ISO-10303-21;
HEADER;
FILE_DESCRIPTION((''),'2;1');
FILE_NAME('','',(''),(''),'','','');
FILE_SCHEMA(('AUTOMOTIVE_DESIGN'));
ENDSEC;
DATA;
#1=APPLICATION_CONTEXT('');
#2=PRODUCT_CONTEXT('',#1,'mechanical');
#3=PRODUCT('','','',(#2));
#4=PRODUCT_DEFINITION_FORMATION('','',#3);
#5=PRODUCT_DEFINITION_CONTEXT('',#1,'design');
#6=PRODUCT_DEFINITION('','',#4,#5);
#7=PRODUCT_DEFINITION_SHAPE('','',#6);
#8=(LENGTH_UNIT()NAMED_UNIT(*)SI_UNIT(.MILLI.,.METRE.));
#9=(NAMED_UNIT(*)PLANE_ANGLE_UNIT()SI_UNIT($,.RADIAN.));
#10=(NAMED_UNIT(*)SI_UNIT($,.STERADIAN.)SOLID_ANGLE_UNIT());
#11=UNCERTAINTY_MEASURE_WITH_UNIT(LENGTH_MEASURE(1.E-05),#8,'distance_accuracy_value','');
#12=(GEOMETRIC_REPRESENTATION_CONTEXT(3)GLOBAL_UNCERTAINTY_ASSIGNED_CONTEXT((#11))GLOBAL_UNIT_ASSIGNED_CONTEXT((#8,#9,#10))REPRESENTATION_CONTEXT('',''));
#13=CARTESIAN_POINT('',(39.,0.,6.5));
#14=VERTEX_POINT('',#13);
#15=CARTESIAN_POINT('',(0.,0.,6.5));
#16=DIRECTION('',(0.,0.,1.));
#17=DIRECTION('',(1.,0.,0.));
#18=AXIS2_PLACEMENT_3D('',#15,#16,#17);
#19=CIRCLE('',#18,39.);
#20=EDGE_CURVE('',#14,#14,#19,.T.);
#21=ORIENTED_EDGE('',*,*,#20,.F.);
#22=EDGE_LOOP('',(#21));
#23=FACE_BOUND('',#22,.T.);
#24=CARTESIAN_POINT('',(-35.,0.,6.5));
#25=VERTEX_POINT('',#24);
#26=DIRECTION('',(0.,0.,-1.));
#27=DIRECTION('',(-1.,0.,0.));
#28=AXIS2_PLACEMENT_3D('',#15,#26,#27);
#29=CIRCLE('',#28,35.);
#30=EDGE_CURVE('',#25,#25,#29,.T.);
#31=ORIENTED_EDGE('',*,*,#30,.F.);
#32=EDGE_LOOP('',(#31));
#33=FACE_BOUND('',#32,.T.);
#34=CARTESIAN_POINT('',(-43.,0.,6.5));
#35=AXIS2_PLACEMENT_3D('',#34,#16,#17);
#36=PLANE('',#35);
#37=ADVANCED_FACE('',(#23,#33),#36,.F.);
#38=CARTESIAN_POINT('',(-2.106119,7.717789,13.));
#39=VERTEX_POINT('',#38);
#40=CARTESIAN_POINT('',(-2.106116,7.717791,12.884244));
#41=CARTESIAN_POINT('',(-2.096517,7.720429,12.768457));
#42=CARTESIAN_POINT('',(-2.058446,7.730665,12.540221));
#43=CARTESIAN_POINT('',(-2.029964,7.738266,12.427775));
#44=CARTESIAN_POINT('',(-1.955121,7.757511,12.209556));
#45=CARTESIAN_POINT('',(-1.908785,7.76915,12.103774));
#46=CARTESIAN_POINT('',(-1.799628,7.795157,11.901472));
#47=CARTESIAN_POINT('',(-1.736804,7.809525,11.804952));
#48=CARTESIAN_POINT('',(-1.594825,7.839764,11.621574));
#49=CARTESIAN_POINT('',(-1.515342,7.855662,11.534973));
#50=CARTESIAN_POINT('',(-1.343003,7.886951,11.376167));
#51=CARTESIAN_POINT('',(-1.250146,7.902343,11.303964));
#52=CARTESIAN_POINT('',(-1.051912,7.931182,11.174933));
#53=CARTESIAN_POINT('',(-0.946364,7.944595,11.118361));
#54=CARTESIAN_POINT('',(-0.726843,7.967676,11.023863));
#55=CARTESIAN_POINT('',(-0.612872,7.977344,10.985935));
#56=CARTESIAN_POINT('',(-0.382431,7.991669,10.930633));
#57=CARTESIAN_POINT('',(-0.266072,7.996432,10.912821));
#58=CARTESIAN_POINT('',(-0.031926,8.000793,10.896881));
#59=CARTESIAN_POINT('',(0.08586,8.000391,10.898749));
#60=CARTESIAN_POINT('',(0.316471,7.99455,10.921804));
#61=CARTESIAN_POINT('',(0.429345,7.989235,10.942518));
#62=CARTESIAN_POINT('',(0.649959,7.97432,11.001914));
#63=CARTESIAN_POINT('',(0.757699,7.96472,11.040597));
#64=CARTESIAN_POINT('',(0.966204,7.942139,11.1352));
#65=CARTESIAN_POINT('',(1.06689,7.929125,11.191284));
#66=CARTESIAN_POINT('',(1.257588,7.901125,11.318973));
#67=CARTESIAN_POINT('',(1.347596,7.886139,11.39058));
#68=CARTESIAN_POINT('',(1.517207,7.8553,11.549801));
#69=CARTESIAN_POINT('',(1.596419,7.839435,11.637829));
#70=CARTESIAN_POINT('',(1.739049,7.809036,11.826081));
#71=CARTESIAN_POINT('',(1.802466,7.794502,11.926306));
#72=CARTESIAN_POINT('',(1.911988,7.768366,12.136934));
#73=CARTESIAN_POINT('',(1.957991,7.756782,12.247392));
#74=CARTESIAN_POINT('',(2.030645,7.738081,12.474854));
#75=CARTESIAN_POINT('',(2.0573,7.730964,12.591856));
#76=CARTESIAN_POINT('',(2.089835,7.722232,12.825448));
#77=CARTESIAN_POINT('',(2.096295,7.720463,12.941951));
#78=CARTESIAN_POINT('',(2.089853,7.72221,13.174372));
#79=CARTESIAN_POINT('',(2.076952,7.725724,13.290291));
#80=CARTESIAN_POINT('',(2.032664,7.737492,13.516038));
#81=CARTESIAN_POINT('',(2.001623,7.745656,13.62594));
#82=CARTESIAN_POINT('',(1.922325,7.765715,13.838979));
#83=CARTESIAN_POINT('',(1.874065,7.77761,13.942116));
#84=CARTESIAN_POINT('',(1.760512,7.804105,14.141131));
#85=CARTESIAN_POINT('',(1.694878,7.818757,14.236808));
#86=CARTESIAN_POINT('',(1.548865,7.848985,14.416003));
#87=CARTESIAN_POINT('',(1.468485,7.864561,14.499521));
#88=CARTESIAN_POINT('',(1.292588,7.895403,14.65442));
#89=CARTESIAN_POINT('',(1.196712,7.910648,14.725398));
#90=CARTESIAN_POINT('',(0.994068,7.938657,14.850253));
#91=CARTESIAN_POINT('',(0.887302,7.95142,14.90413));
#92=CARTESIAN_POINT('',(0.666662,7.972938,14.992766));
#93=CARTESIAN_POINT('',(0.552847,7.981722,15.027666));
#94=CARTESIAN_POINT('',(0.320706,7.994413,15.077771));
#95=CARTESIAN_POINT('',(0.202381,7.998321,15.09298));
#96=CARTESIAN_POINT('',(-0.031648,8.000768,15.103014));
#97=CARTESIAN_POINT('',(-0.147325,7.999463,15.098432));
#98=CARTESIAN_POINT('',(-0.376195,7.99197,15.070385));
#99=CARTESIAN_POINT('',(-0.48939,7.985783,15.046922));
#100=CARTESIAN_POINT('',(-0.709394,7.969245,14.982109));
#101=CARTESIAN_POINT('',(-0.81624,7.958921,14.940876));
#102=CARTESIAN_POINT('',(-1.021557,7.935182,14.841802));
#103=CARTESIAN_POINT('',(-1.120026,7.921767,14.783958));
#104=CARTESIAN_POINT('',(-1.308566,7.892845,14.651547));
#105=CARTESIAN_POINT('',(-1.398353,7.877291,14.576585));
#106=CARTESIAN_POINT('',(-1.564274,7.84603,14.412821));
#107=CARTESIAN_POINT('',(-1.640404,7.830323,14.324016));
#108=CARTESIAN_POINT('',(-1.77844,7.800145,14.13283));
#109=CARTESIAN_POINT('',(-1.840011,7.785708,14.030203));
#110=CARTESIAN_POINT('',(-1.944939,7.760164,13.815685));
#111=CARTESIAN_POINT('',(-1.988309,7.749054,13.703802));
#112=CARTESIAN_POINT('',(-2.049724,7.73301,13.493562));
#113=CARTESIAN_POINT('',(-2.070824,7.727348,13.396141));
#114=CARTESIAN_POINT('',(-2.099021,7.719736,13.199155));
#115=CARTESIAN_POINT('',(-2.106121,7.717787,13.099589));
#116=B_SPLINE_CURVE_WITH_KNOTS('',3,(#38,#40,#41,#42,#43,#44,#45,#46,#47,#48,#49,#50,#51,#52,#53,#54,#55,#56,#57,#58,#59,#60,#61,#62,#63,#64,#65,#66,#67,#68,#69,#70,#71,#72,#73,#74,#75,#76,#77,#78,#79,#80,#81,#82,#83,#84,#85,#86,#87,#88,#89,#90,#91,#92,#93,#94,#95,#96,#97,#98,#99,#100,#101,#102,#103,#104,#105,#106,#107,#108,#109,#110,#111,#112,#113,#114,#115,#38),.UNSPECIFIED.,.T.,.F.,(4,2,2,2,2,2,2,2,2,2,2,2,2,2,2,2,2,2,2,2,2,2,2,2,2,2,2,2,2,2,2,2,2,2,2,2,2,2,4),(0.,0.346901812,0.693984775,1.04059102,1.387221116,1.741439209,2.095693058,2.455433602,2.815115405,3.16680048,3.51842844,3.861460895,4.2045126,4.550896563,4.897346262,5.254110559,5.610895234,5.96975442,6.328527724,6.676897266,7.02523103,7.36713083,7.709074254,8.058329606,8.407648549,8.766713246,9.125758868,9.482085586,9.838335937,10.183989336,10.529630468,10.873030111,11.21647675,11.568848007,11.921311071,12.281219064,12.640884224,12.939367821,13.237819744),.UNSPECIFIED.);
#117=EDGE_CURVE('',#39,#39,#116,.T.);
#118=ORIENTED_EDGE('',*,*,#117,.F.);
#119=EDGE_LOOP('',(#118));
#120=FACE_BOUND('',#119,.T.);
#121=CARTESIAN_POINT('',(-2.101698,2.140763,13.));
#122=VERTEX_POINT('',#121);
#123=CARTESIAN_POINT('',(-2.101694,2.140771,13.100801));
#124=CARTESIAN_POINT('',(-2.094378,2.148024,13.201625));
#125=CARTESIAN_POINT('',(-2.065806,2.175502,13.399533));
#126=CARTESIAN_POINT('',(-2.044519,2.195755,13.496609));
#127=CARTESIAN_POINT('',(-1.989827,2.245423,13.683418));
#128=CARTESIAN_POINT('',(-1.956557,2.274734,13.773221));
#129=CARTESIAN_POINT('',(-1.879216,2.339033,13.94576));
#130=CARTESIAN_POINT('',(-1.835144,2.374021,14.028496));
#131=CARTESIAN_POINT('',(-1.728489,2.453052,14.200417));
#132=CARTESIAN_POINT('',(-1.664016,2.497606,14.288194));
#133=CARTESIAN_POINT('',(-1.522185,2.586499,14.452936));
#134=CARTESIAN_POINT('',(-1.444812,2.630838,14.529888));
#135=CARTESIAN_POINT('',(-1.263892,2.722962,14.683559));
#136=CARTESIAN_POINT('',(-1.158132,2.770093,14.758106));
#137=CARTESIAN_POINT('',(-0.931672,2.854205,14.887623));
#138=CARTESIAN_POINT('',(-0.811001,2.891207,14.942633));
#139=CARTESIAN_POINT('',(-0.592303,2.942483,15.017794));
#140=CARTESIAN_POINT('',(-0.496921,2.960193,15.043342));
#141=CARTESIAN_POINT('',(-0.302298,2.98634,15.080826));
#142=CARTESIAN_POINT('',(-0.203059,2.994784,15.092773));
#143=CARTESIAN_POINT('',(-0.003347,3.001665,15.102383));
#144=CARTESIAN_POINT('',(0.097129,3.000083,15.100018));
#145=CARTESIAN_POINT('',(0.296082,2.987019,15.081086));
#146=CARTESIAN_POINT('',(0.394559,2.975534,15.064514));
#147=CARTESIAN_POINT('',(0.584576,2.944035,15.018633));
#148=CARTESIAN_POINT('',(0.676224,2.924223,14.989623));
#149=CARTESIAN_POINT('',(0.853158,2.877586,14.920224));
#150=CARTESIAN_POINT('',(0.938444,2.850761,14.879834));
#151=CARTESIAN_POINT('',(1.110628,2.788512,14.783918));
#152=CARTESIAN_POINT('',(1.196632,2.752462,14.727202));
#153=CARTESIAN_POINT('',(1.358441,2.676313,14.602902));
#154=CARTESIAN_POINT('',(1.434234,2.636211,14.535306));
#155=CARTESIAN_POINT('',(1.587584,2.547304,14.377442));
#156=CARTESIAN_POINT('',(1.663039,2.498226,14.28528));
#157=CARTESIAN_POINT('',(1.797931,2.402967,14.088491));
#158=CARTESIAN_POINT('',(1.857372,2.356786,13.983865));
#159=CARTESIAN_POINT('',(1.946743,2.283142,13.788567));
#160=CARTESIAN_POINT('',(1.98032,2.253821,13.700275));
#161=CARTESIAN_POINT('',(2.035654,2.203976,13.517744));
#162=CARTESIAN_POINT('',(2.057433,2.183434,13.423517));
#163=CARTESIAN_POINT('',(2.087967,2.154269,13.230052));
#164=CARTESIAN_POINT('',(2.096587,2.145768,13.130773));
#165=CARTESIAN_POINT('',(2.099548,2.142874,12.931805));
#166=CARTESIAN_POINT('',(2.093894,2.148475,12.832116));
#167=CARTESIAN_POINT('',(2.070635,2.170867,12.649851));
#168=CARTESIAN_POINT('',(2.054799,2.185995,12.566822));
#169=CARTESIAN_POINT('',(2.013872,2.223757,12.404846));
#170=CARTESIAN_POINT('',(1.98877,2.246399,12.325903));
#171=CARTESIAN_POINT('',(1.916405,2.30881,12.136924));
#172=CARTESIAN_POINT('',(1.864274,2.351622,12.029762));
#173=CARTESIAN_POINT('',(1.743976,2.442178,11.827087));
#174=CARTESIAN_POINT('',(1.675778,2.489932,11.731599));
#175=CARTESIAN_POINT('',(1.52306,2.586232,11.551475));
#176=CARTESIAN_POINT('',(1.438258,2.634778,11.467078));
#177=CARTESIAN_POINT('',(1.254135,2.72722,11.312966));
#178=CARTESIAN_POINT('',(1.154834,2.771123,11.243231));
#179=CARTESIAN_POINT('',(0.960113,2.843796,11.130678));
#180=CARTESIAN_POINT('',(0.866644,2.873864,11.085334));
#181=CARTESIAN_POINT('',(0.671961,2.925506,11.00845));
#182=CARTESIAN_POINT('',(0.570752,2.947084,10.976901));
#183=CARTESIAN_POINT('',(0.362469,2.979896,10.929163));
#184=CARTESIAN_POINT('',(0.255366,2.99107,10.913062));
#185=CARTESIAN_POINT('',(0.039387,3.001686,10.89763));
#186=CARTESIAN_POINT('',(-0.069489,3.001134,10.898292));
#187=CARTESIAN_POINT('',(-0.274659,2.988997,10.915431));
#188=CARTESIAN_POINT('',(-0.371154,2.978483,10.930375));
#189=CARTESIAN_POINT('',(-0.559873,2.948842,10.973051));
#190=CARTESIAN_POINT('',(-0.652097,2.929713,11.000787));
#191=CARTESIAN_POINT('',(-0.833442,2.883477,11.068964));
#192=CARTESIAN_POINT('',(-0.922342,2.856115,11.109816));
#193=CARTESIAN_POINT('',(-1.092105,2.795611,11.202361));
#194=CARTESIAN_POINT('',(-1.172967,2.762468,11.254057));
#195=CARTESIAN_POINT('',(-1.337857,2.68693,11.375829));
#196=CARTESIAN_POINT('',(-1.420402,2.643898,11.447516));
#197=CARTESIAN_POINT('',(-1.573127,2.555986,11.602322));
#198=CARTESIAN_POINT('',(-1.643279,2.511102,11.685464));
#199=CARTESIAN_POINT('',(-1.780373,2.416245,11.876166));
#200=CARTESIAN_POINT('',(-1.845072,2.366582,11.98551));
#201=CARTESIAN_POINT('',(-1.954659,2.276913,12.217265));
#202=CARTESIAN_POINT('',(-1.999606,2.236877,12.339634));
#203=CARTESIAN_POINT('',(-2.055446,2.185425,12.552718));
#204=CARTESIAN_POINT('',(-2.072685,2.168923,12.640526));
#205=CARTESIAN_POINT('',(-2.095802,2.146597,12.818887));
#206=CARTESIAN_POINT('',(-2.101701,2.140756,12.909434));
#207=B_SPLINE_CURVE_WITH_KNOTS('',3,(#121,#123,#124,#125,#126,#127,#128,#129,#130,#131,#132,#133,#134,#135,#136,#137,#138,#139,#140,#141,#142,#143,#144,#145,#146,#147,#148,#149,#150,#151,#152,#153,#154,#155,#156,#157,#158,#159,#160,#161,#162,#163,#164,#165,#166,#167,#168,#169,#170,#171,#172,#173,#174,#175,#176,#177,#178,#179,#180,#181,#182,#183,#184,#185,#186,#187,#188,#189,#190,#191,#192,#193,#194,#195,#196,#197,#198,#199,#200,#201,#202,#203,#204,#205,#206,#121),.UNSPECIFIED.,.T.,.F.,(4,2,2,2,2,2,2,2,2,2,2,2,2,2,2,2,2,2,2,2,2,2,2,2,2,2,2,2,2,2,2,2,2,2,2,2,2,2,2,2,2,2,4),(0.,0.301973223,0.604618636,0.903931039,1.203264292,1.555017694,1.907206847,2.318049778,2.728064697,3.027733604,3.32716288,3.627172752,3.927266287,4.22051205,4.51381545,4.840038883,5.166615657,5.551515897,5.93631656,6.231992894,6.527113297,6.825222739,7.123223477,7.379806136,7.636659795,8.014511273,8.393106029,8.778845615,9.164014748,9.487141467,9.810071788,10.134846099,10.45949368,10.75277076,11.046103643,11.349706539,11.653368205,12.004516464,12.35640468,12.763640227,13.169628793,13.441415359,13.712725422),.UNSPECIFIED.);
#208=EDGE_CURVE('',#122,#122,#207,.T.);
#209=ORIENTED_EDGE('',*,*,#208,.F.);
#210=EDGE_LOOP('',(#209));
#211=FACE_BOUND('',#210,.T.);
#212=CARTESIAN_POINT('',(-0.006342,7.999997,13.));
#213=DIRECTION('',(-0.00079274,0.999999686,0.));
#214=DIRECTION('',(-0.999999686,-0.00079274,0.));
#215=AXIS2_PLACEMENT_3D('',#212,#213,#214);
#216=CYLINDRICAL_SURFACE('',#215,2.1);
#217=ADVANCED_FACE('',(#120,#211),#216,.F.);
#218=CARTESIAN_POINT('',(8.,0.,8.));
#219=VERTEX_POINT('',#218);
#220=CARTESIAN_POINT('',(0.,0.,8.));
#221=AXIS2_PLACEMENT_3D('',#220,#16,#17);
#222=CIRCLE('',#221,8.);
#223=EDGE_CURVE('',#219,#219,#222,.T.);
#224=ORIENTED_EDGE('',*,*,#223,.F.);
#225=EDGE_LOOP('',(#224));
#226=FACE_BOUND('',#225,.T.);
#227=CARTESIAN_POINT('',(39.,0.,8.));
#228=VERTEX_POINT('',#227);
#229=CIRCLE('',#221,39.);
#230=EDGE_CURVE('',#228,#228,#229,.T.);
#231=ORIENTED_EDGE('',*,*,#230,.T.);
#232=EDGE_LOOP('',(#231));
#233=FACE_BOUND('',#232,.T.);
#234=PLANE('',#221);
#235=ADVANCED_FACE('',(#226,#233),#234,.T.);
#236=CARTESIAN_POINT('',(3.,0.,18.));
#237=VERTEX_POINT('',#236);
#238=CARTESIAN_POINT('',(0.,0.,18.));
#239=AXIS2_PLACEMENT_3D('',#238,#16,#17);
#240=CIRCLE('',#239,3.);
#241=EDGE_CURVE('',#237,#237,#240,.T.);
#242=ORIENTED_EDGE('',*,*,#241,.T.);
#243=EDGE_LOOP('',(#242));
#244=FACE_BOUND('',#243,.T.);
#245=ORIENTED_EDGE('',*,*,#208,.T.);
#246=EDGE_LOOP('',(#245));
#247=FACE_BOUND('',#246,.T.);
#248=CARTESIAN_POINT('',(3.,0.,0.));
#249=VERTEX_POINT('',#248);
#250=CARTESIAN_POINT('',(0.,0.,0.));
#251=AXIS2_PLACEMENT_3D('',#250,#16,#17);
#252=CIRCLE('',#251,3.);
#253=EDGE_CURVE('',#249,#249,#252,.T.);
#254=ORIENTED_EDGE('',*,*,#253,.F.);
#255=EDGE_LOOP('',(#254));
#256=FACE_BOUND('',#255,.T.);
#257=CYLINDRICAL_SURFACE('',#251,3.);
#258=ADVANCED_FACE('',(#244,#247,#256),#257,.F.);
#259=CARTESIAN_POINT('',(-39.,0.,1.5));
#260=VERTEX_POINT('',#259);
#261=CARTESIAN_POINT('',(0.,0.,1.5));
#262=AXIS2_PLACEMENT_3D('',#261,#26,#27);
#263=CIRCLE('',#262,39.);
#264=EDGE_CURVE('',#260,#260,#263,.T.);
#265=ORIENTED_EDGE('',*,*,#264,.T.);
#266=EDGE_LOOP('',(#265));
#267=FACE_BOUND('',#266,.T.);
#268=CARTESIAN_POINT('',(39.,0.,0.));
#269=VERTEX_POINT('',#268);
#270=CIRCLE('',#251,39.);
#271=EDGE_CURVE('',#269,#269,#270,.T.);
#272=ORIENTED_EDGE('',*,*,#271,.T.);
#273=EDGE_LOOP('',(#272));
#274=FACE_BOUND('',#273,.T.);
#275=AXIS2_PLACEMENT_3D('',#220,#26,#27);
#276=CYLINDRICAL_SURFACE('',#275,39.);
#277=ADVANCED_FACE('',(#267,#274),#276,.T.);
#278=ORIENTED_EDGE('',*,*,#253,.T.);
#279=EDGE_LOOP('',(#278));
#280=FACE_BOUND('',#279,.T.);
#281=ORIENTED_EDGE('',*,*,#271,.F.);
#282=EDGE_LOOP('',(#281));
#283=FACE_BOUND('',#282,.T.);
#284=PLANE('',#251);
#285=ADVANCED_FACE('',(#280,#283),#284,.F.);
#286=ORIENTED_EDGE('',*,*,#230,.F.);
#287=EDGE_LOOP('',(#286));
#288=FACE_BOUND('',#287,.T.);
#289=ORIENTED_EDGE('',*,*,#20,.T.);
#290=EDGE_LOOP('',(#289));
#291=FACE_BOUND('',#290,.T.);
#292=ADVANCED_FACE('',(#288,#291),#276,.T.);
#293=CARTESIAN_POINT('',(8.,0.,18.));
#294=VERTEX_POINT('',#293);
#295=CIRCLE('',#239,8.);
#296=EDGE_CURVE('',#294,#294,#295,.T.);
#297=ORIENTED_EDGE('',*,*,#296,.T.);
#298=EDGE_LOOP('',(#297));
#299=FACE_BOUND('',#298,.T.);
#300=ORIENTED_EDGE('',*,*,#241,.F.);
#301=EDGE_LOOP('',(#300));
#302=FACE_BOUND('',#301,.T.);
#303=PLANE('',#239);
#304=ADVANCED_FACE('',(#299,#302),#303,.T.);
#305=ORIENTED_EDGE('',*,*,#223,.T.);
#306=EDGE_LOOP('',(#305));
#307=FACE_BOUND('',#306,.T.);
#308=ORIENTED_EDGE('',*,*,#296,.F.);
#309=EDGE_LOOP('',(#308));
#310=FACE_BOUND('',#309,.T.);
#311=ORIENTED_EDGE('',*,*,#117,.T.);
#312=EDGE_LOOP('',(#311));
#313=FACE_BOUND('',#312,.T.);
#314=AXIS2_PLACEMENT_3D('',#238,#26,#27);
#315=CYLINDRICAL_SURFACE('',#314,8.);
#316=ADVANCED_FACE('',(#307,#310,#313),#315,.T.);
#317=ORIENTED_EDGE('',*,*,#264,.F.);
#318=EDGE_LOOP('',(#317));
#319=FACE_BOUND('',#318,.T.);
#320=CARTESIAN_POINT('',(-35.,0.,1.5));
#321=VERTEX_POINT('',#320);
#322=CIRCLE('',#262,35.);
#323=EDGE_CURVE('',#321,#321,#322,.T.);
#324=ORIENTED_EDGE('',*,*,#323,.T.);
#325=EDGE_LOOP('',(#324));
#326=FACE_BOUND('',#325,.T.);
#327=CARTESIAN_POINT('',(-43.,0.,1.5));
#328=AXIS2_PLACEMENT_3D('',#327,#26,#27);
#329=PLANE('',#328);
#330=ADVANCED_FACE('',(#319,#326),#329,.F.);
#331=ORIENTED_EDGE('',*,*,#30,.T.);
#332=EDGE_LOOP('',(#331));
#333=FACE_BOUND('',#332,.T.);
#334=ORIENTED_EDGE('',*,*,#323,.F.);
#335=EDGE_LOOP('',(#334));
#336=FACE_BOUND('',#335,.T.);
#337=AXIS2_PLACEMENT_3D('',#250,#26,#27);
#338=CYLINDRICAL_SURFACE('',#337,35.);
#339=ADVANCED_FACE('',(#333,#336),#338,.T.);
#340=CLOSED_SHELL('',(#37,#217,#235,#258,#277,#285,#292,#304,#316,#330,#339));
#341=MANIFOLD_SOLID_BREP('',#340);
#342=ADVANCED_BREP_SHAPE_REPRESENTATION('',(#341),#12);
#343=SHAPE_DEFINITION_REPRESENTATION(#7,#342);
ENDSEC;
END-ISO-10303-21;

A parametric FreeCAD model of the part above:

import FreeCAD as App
import Part
import Sketcher

V = App.Vector
Q = App.Units.Quantity

doc = App.newDocument("Part")
params = doc.addObject("Spreadsheet::Sheet", "Params")
for row, (alias, value) in enumerate([
    ("sketch1_diameter", "78 mm"),
    ("pad1_length", "8 mm"),
    ("sketch2_diameter", "16 mm"),
    ("pad2_length", "10 mm"),
    ("sketch3_diameter", "6 mm"),
    ("sketch4_diameter", "4.2 mm"),
    ("sketch5_width", "8 mm"),
    ("sketch5_height", "5 mm"),
    ("groove_angle", "360 deg"),
], start=1):
    params.set(f"A{row}", alias)
    params.set(f"B{row}", "=" + value)
    params.setAlias(f"B{row}", alias)

body = doc.addObject("PartDesign::Body", "Body")

# Sketch on XY plane
sketch1 = body.newObject("Sketcher::SketchObject", "Sketch")
sketch1.AttachmentSupport = (doc.getObject("XY_Plane"), [""])
sketch1.MapMode = "FlatFace"
sketch1.addGeometry(Part.Circle(V(0, 0, 0), V(0, 0, 1), 39), False)
sketch1.addConstraint([
    Sketcher.Constraint("Coincident", 0, 3, -1, 1),
    Sketcher.Constraint("Diameter", 0, Q("78 mm")),
])
sketch1.setExpression("Constraints[1]", "Params.sketch1_diameter")
pad1 = body.newObject("PartDesign::Pad", "Pad")
pad1.Profile = sketch1
pad1.setExpression("Length", "Params.pad1_length")

# Sketch on XY plane
sketch2 = body.newObject("Sketcher::SketchObject", "Sketch001")
sketch2.AttachmentSupport = (doc.getObject("XY_Plane"), [""])
sketch2.MapMode = "FlatFace"
sketch2.AttachmentOffset = App.Placement(V(0, 0, 8), App.Rotation())
sketch2.addGeometry(Part.Circle(V(0, 0, 0), V(0, 0, 1), 8), False)
sketch2.addConstraint([
    Sketcher.Constraint("Coincident", 0, 3, -1, 1),
    Sketcher.Constraint("Diameter", 0, Q("16 mm")),
])
sketch2.setExpression("Constraints[1]", "Params.sketch2_diameter")
pad2 = body.newObject("PartDesign::Pad", "Pad001")
pad2.Profile = sketch2
pad2.setExpression("Length", "Params.pad2_length")

# Sketch on XY plane
sketch3 = body.newObject("Sketcher::SketchObject", "Sketch002")
sketch3.AttachmentSupport = (doc.getObject("XY_Plane"), [""])
sketch3.MapMode = "FlatFace"
sketch3.AttachmentOffset = App.Placement(V(0, 0, 18), App.Rotation())
sketch3.addGeometry(Part.Circle(V(0, 0, 0), V(0, 0, 1), 3), False)
sketch3.addConstraint([
    Sketcher.Constraint("Coincident", 0, 3, -1, 1),
    Sketcher.Constraint("Diameter", 0, Q("6 mm")),
])
sketch3.setExpression("Constraints[1]", "Params.sketch3_diameter")
pocket1 = body.newObject("PartDesign::Pocket", "Pocket")
pocket1.Profile = sketch3
pocket1.Type = "ThroughAll"

# Sketch on an angled plane
sketch4 = body.newObject("Sketcher::SketchObject", "Sketch003")
sketch4.Placement = App.Placement(V(-0.006342, 7.999997, 13), App.Rotation(V(0.999999686, 0.00079274, 0), V(0, 0, -1), V(-0.00079274, 0.999999686, 0), "ZXY"))
sketch4.addGeometry(Part.Circle(V(0, 0, 0), V(0, 0, 1), 2.1), False)
sketch4.addConstraint([
    Sketcher.Constraint("Coincident", 0, 3, -1, 1),
    Sketcher.Constraint("Diameter", 0, Q("4.2 mm")),
])
sketch4.setExpression("Constraints[1]", "Params.sketch4_diameter")
pocket2 = body.newObject("PartDesign::Pocket", "Pocket001")
pocket2.Profile = sketch4
pocket2.Type = "UpToFirst"

# Sketch on XZ plane
sketch5 = body.newObject("Sketcher::SketchObject", "Sketch004")
sketch5.AttachmentSupport = (doc.getObject("XZ_Plane"), [""])
sketch5.MapMode = "FlatFace"
sketch5.addGeometry([
    Part.LineSegment(V(-43, 2, 0), V(-43, 6, 0)),
    Part.LineSegment(V(-43, 6, 0), V(-35, 6, 0)),
    Part.LineSegment(V(-35, 6, 0), V(-35, 2, 0)),
    Part.LineSegment(V(-35, 2, 0), V(-43, 2, 0)),
], False)
sketch5.addConstraint([
    Sketcher.Constraint("Coincident", 0, 2, 1, 1),
    Sketcher.Constraint("Coincident", 1, 2, 2, 1),
    Sketcher.Constraint("Coincident", 2, 2, 3, 1),
    Sketcher.Constraint("Coincident", 3, 2, 0, 1),
    Sketcher.Constraint("Vertical", 0),
    Sketcher.Constraint("Horizontal", 1),
    Sketcher.Constraint("Vertical", 2),
    Sketcher.Constraint("Horizontal", 3),
    Sketcher.Constraint("DistanceX", 1, 1, 1, 2, Q("8 mm")),
    Sketcher.Constraint("DistanceY", 0, 1, 0, 2, Q("5 mm")),
    Sketcher.Constraint("DistanceX", 0, 2, -1, 1, Q("43 mm")),
    Sketcher.Constraint("DistanceY", -1, 1, 0, 2, Q("6.5 mm")),
])
sketch5.setExpression("Constraints[8]", "Params.sketch5_width")
sketch5.setExpression("Constraints[9]", "Params.sketch5_height")
groove = body.newObject("PartDesign::Groove", "Groove")
groove.Profile = sketch5
groove.ReferenceAxis = (sketch5, ["V_Axis"])
groove.setExpression("Angle", "Params.groove_angle")

doc.recompute()
